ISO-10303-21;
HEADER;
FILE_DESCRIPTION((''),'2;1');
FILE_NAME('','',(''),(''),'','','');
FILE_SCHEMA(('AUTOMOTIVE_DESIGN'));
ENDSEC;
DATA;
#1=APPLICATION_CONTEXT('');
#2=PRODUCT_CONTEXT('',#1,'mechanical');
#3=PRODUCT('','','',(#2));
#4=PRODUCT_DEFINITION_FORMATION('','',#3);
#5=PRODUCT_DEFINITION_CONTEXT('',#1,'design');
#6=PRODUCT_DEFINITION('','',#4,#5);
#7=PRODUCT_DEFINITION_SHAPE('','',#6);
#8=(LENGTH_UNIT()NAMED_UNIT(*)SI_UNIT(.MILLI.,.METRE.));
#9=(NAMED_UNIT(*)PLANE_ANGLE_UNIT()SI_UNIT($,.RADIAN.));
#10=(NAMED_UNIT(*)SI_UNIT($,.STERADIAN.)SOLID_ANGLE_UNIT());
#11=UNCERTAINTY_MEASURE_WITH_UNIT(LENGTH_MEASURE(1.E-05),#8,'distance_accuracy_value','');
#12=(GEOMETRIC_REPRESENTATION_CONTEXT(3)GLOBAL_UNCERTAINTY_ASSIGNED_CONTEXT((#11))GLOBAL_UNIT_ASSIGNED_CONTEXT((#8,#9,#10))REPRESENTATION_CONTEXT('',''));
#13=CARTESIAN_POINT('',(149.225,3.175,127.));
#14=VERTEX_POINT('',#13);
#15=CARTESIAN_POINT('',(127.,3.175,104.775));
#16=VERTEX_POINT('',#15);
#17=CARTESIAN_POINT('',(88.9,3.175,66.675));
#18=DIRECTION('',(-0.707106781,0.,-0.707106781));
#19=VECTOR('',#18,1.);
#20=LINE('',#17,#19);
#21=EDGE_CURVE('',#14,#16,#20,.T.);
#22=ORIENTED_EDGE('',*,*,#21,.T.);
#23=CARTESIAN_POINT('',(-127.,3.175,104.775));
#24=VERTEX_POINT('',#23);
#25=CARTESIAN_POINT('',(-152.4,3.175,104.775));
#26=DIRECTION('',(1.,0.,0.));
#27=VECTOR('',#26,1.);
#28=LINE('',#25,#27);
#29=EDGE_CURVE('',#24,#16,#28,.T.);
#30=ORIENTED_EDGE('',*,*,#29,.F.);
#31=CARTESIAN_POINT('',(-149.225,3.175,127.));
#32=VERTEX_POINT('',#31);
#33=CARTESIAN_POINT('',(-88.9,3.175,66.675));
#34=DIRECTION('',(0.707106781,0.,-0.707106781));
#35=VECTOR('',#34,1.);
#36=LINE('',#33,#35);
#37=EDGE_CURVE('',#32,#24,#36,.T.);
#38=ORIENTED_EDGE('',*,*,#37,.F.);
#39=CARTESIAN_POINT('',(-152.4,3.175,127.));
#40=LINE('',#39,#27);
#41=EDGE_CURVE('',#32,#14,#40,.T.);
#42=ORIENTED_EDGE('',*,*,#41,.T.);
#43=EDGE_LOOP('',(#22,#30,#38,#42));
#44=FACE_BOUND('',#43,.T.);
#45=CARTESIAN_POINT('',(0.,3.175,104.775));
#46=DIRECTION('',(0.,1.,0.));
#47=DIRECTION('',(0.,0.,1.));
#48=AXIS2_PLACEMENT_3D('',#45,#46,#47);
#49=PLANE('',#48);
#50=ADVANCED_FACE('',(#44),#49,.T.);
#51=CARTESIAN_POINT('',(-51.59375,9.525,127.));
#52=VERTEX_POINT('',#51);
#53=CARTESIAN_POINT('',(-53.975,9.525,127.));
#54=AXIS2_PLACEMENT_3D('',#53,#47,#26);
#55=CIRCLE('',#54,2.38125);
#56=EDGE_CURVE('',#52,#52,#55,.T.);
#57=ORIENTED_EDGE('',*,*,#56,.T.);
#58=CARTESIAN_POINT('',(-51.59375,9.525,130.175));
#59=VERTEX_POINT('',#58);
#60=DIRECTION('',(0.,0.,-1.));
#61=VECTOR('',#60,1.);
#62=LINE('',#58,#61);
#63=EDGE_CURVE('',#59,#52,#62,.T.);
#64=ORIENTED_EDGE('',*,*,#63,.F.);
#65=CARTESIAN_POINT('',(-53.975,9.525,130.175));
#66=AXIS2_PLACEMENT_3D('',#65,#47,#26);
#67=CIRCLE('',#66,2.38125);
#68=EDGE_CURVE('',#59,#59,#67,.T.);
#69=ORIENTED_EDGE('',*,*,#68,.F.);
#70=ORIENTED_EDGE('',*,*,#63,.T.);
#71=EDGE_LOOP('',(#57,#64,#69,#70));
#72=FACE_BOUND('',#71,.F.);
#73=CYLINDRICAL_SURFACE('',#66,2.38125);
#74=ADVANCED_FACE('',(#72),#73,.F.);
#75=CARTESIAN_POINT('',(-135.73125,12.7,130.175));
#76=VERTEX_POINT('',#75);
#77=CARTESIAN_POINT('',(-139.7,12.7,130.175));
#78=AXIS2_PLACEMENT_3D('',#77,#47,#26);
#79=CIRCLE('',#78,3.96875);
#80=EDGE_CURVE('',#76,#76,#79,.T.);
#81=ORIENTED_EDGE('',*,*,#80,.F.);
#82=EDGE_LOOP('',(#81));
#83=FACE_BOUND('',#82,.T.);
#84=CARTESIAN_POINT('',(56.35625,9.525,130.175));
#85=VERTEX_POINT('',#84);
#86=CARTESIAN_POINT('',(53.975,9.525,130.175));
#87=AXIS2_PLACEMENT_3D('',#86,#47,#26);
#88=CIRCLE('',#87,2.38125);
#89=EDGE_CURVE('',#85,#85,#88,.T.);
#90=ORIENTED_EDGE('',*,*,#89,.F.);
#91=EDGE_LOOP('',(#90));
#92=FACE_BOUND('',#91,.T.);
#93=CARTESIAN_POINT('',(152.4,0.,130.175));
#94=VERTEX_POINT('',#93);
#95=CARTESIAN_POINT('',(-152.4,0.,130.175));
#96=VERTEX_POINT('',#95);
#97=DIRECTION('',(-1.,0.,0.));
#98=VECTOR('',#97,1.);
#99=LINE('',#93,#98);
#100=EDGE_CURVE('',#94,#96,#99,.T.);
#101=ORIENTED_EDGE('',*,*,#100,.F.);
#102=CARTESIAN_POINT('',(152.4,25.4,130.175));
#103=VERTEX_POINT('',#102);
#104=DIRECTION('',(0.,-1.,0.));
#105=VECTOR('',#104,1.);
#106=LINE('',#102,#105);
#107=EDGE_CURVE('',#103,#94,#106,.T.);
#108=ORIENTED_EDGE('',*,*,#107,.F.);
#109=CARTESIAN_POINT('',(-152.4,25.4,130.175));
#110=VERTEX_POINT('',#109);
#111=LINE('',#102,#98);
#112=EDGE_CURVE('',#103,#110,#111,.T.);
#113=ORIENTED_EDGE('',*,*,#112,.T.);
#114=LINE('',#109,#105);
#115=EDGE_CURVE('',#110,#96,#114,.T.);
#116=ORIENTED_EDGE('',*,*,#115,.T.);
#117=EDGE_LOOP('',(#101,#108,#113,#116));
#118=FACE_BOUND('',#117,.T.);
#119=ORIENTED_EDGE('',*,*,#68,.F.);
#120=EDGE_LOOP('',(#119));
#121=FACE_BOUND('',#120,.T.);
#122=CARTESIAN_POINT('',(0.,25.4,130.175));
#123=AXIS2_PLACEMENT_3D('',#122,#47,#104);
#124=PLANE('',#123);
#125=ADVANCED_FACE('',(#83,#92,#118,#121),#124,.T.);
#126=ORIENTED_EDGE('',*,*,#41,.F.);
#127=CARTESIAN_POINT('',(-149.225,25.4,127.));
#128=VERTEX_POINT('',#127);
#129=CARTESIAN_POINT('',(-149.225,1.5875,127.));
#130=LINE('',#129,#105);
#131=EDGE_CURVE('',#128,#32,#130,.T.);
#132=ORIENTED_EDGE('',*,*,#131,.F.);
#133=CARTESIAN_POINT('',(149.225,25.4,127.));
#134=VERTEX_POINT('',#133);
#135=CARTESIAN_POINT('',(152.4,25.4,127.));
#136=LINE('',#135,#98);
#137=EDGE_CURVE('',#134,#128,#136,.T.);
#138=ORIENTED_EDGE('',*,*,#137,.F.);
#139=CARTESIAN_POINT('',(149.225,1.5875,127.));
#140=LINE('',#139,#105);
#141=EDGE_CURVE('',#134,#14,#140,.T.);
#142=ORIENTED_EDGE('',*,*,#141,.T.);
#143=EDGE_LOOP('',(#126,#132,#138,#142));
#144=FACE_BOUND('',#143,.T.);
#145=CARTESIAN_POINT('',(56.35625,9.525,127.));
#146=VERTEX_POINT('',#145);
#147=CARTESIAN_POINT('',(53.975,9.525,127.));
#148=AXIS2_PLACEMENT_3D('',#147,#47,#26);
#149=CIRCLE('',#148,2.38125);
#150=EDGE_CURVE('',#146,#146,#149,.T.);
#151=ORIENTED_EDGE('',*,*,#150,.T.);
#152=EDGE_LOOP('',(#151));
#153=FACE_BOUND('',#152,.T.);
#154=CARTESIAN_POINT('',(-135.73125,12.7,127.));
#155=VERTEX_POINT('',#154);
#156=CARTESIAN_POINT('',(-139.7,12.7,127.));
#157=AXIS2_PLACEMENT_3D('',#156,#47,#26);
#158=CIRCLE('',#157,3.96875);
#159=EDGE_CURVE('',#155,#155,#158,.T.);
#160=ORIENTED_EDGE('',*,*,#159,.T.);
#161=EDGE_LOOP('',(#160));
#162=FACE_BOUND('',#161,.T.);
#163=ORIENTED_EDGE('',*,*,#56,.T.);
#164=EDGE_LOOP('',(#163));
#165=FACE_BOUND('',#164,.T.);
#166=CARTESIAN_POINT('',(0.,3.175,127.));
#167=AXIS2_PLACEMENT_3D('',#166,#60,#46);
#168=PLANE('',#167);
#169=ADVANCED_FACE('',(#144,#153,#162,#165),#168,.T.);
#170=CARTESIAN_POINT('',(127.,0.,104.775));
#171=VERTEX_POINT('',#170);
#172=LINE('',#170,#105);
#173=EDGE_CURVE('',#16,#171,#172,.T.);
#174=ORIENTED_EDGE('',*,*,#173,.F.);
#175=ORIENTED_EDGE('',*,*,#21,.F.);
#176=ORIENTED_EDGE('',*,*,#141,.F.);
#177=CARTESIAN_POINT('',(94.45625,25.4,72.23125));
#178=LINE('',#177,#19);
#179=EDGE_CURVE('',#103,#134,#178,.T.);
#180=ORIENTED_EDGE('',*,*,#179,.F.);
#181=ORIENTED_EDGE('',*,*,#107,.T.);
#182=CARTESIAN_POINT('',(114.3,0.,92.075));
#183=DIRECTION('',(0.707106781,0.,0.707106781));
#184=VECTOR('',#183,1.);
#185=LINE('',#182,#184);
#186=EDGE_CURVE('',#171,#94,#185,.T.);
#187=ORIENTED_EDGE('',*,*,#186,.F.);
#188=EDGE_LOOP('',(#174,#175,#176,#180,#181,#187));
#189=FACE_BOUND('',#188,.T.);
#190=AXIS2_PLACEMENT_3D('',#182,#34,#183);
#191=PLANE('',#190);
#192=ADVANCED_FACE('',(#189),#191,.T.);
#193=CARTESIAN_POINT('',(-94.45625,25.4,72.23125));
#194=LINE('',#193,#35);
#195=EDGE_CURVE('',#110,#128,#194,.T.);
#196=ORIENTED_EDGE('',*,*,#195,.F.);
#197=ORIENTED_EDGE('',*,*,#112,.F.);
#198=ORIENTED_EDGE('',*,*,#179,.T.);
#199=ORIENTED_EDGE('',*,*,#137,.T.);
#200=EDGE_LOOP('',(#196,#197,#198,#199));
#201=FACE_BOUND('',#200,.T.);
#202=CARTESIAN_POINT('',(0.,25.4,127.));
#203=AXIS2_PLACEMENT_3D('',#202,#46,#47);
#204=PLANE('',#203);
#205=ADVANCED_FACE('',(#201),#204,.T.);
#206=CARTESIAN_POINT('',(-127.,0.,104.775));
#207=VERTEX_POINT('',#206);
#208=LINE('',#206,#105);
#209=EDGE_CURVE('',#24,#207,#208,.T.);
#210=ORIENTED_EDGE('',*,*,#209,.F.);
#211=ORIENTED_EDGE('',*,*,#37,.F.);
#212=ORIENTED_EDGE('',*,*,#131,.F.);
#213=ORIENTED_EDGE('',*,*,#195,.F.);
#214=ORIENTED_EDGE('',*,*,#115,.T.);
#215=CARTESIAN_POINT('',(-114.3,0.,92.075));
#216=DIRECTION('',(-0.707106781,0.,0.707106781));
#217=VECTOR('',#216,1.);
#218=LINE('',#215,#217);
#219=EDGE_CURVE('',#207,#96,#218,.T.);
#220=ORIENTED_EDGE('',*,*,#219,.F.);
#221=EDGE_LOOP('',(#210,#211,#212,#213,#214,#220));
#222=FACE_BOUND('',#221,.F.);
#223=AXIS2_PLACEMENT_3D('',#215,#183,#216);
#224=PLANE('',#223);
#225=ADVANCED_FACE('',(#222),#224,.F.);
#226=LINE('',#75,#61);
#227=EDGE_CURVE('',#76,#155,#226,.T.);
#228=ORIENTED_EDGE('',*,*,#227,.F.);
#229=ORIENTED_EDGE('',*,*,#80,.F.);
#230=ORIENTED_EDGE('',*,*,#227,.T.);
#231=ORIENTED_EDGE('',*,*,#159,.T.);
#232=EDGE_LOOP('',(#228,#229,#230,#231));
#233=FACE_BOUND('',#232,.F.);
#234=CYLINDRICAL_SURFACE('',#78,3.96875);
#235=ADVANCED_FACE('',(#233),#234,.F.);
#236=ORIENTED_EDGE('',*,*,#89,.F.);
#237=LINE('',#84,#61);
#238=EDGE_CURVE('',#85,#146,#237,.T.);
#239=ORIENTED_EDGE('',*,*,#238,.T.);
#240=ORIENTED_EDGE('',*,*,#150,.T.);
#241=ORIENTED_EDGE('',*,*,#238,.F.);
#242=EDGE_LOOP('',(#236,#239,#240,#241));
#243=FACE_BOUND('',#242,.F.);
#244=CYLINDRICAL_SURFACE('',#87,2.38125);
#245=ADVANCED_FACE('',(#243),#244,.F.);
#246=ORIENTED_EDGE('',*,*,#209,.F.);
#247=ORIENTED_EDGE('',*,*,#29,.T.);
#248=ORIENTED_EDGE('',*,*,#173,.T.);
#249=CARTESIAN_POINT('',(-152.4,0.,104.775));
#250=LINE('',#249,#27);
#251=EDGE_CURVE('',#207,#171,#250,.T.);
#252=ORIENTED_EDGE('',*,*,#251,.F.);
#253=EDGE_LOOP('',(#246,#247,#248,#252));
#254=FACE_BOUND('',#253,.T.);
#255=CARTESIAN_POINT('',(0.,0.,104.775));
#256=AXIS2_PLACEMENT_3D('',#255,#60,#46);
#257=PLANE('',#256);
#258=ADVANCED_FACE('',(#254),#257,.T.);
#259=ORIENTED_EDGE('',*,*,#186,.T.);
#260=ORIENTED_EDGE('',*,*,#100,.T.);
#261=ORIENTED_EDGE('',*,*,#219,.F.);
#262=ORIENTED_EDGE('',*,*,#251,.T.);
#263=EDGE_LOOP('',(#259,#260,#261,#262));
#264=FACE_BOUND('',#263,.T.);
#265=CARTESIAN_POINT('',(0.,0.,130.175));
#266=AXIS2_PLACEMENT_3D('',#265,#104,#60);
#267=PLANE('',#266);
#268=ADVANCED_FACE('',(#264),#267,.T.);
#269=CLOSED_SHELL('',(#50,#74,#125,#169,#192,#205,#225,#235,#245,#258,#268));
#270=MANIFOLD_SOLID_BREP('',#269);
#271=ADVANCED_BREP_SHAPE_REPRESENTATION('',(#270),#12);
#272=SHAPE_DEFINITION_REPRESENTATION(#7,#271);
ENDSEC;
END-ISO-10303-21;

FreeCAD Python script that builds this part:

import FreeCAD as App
import Part
import Sketcher
Q = App.Units.Quantity

doc = App.newDocument("Part")
params = doc.addObject("Spreadsheet::Sheet", "Params")
for row, (alias, value) in enumerate([
    ("sketch1_width", "1 in"),
    ("sketch1_width2", "0.125 in"),
    ("pad1_length", "12 in"),
    ("sketch2_width", "1.5 in"),
    ("sketch3_diameter", "0.1875 in"),
    ("sketch3_diameter2", "0.3125 in"),
], start=1):
    params.set(f"A{row}", alias)
    params.set(f"B{row}", "=" + value)
    params.setAlias(f"B{row}", alias)

body = doc.addObject("PartDesign::Body", "Body")

# Sketch on YZ plane
sketch1 = body.newObject("Sketcher::SketchObject", "Sketch")
sketch1.AttachmentSupport = (doc.getObject("YZ_Plane"), [""])
sketch1.MapMode = "FlatFace"
sketch1.addGeometry([
    Part.LineSegment(App.Vector(0, 0, 0), App.Vector(0, -25.4, 0)),  # 0
    Part.LineSegment(App.Vector(0, -25.4, 0), App.Vector(3.2, -25.4, 0)),  # 1
    Part.LineSegment(App.Vector(3.2, -25.4, 0), App.Vector(3.2, -3.2, 0)),  # 2
    Part.LineSegment(App.Vector(3.2, -3.2, 0), App.Vector(25.4, -3.2, 0)),  # 3
    Part.LineSegment(App.Vector(25.4, -3.2, 0), App.Vector(25.4, 0, 0)),  # 4
    Part.LineSegment(App.Vector(25.4, 0, 0), App.Vector(0, 0, 0)),  # 5
], False)
sketch1.addConstraint([
    Sketcher.Constraint("Coincident", 0, 2, 1, 1),
    Sketcher.Constraint("Coincident", 1, 2, 2, 1),
    Sketcher.Constraint("Coincident", 2, 2, 3, 1),
    Sketcher.Constraint("Coincident", 3, 2, 4, 1),
    Sketcher.Constraint("Coincident", 4, 2, 5, 1),
    Sketcher.Constraint("Coincident", 5, 2, 0, 1),
    Sketcher.Constraint("Vertical", 0),
    Sketcher.Constraint("Horizontal", 1),
    Sketcher.Constraint("Vertical", 2),
    Sketcher.Constraint("Horizontal", 3),
    Sketcher.Constraint("Vertical", 4),
    Sketcher.Constraint("Horizontal", 5),
    Sketcher.Constraint("Coincident", 5, 2, -1, 1),
    Sketcher.Constraint("Equal", 5, 0),
    Sketcher.Constraint("Equal", 3, 2),
    Sketcher.Constraint("DistanceX", 5, 2, 5, 1, Q("1 in")),
    Sketcher.Constraint("DistanceX", 1, 1, 1, 2, Q("0.125 in")),
])
sketch1.setExpression("Constraints[15]", "Params.sketch1_width")
sketch1.setExpression("Constraints[16]", "Params.sketch1_width2")
pad1 = body.newObject("PartDesign::Pad", "Pad")
pad1.Profile = sketch1
pad1.setExpression("Length", "Params.pad1_length")
pad1.Midplane = True

# Sketch on XZ plane
sketch2 = body.newObject("Sketcher::SketchObject", "Sketch001")
sketch2.AttachmentSupport = (doc.getObject("XZ_Plane"), [""])
sketch2.MapMode = "FlatFace"
sketch2.addGeometry([
    Part.LineSegment(App.Vector(-114, -38, 0), App.Vector(-152, 0, 0)),  # 0
    Part.LineSegment(App.Vector(-152, 0, 0), App.Vector(-152, -38, 0)),  # 1
    Part.LineSegment(App.Vector(-152, -38, 0), App.Vector(-114, -38, 0)),  # 2
    Part.LineSegment(App.Vector(152, 0, 0), App.Vector(114, -38, 0)),  # 3
    Part.LineSegment(App.Vector(114, -38, 0), App.Vector(152, -38, 0)),  # 4
    Part.LineSegment(App.Vector(152, -38, 0), App.Vector(152, 0, 0)),  # 5
], False)
sketch2.addConstraint([
    Sketcher.Constraint("Coincident", 0, 2, 1, 1),
    Sketcher.Constraint("Coincident", 1, 2, 2, 1),
    Sketcher.Constraint("Coincident", 2, 2, 0, 1),
    Sketcher.Constraint("Coincident", 3, 2, 4, 1),
    Sketcher.Constraint("Coincident", 4, 2, 5, 1),
    Sketcher.Constraint("Coincident", 5, 2, 3, 1),
    Sketcher.Constraint("Vertical", 1),
    Sketcher.Constraint("Horizontal", 2),
    Sketcher.Constraint("Horizontal", 4),
    Sketcher.Constraint("Vertical", 5),
    Sketcher.Constraint("Symmetric", 0, 2, 5, 2, -1, 1),
    Sketcher.Constraint("Symmetric", 2, 2, 3, 2, -2),
    Sketcher.Constraint("PointOnObject", 0, 2, -1),
    Sketcher.Constraint("Perpendicular", 0, 3),
    Sketcher.Constraint("DistanceX", 2, 1, 2, 2, Q("1.5 in")),
    Sketcher.Constraint("DistanceX", 0, 2, -1, 1, Q("6 in")),
])
sketch2.setExpression("Constraints[14]", "Params.sketch2_width")
pocket1 = body.newObject("PartDesign::Pocket", "Pocket")
pocket1.Profile = sketch2
pocket1.Type = "ThroughAll"

# Sketch on XY plane
sketch3 = body.newObject("Sketcher::SketchObject", "Sketch002")
sketch3.AttachmentSupport = (doc.getObject("XY_Plane"), [""])
sketch3.MapMode = "FlatFace"
sketch3.addGeometry([
    Part.Circle(App.Vector(-54, 9.5, 0), App.Vector(0, 0, 1), 2.4),
    Part.Circle(App.Vector(54, 9.5, 0), App.Vector(0, 0, 1), 2.4),
    Part.Circle(App.Vector(-139.7, 12.7, 0), App.Vector(0, 0, 1), 4),
], False)
sketch3.addConstraint([
    Sketcher.Constraint("Equal", 0, 1),
    Sketcher.Constraint("Symmetric", 0, 3, 1, 3, -2),
    Sketcher.Constraint("Diameter", 0, Q("0.1875 in")),
    Sketcher.Constraint("Diameter", 2, Q("0.3125 in")),
    Sketcher.Constraint("DistanceX", 2, 3, -1, 1, Q("5.5 in")),
    Sketcher.Constraint("DistanceY", -1, 1, 2, 3, Q("0.5 in")),
    Sketcher.Constraint("DistanceX", 0, 3, 1, 3, Q("4.25 in")),
    Sketcher.Constraint("DistanceY", -1, 1, 0, 3, Q("0.375 in")),
])
sketch3.setExpression("Constraints[2]", "Params.sketch3_diameter")
sketch3.setExpression("Constraints[3]", "Params.sketch3_diameter2")
pocket2 = body.newObject("PartDesign::Pocket", "Pocket001")
pocket2.Profile = sketch3
pocket2.Type = "ThroughAll"
body2 = doc.addObject("PartDesign::Body", "Body001")
doc.recompute()

body.Placement = App.Placement(App.Vector(0, 0, 130.175), App.Rotation(App.Vector(0, 0, 1), 0))
boolean = body2.newObject("PartDesign::Boolean", "Boolean")
boolean.Type = "Fuse"
boolean.addObjects([body])

doc.recompute()
